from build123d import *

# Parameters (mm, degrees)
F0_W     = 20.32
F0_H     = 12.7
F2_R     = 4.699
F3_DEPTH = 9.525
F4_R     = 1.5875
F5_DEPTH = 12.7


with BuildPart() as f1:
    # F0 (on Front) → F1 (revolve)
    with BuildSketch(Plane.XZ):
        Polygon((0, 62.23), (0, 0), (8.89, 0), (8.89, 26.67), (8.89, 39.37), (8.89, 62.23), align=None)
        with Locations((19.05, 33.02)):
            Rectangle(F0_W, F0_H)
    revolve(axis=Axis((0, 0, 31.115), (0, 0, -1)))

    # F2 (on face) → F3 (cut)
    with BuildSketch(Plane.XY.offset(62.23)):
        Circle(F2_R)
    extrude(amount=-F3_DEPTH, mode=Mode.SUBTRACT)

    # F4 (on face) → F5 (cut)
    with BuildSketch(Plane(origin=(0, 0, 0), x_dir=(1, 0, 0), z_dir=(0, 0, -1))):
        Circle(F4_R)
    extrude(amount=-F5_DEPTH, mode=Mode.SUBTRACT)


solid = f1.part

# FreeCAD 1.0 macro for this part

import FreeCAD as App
import Part
import Sketcher
from FreeCAD import Vector
Q = App.Units.Quantity

doc = App.newDocument("Part")
params = doc.addObject("Spreadsheet::Sheet", "Params")
for row, (alias, value) in enumerate([
    ("sketch1_width", "0.8 in"),
    ("sketch1_height", "0.5 in"),
    ("sketch1_height2", "0.9 in"),
    ("sketch1_width2", "0.35 in"),
    ("sketch1_height3", "2.45 in"),
    ("revolution_angle", "360 deg"),
    ("sketch2_diameter", "0.37 in"),
    ("pocket1_length", "0.375 in"),
    ("sketch3_diameter", "0.125 in"),
    ("pocket2_length", "0.5 in"),
], start=1):
    params.set(f"A{row}", alias)
    params.set(f"B{row}", "=" + value)
    params.setAlias(f"B{row}", alias)

body = doc.addObject("PartDesign::Body", "Body")

# Sketch on XZ plane
sketch1 = body.newObject("Sketcher::SketchObject", "Sketch")
sketch1.AttachmentSupport = (doc.getObject("XZ_Plane"), [""])
sketch1.MapMode = "FlatFace"
sketch1.addGeometry([
    Part.LineSegment(Vector(0, 62, 0), Vector(0, 0, 0)),  # 0
    Part.LineSegment(Vector(0, 0, 0), Vector(9, 0, 0)),  # 1
    Part.LineSegment(Vector(9, 0, 0), Vector(9, 27, 0)),  # 2
    Part.LineSegment(Vector(9, 27, 0), Vector(29, 27, 0)),  # 3
    Part.LineSegment(Vector(29, 27, 0), Vector(29, 39, 0)),  # 4
    Part.LineSegment(Vector(29, 39, 0), Vector(9, 39, 0)),  # 5
    Part.LineSegment(Vector(9, 39, 0), Vector(9, 62, 0)),  # 6
    Part.LineSegment(Vector(9, 62, 0), Vector(0, 62, 0)),  # 7
], False)
sketch1.addConstraint([
    Sketcher.Constraint("Coincident", 0, 2, 1, 1),
    Sketcher.Constraint("Coincident", 1, 2, 2, 1),
    Sketcher.Constraint("Coincident", 2, 2, 3, 1),
    Sketcher.Constraint("Coincident", 3, 2, 4, 1),
    Sketcher.Constraint("Coincident", 4, 2, 5, 1),
    Sketcher.Constraint("Coincident", 5, 2, 6, 1),
    Sketcher.Constraint("Coincident", 6, 2, 7, 1),
    Sketcher.Constraint("Coincident", 7, 2, 0, 1),
    Sketcher.Constraint("Vertical", 0),
    Sketcher.Constraint("Horizontal", 1),
    Sketcher.Constraint("Vertical", 2),
    Sketcher.Constraint("Horizontal", 3),
    Sketcher.Constraint("Vertical", 4),
    Sketcher.Constraint("Horizontal", 5),
    Sketcher.Constraint("Vertical", 6),
    Sketcher.Constraint("Horizontal", 7),
    Sketcher.Constraint("Coincident", 0, 2, -1, 1),
    Sketcher.Constraint("Vertical", 2, 2, 5, 2),
    Sketcher.Constraint("DistanceX", 3, 1, 3, 2, Q("0.8 in")),
    Sketcher.Constraint("DistanceY", 4, 1, 4, 2, Q("0.5 in")),
    Sketcher.Constraint("DistanceY", 6, 1, 6, 2, Q("0.9 in")),
    Sketcher.Constraint("DistanceX", 1, 1, 1, 2, Q("0.35 in")),
    Sketcher.Constraint("DistanceY", 0, 2, 0, 1, Q("2.45 in")),
])
sketch1.setExpression("Constraints[18]", "Params.sketch1_width")
sketch1.setExpression("Constraints[19]", "Params.sketch1_height")
sketch1.setExpression("Constraints[20]", "Params.sketch1_height2")
sketch1.setExpression("Constraints[21]", "Params.sketch1_width2")
sketch1.setExpression("Constraints[22]", "Params.sketch1_height3")
revolution = body.newObject("PartDesign::Revolution", "Revolution")
revolution.Profile = sketch1
revolution.ReferenceAxis = (sketch1, ["V_Axis"])
revolution.setExpression("Angle", "Params.revolution_angle")

# Sketch on XY plane
sketch2 = body.newObject("Sketcher::SketchObject", "Sketch001")
sketch2.AttachmentSupport = (doc.getObject("XY_Plane"), [""])
sketch2.MapMode = "FlatFace"
sketch2.AttachmentOffset = App.Placement(Vector(0, 0, 2.45 * 25.4), App.Rotation())
sketch2.addGeometry(Part.Circle(Vector(0, 0, 0), Vector(0, 0, 1), 4.7), False)
sketch2.addConstraint([
    Sketcher.Constraint("Coincident", 0, 3, -1, 1),
    Sketcher.Constraint("Diameter", 0, Q("0.37 in")),
])
sketch2.setExpression("Constraints[1]", "Params.sketch2_diameter")
pocket1 = body.newObject("PartDesign::Pocket", "Pocket")
pocket1.Profile = sketch2
pocket1.setExpression("Length", "Params.pocket1_length")

# Sketch on XY plane
sketch3 = body.newObject("Sketcher::SketchObject", "Sketch002")
sketch3.AttachmentSupport = (doc.getObject("XY_Plane"), [""])
sketch3.MapMode = "FlatFace"
sketch3.addGeometry(Part.Circle(Vector(0, 0, 0), Vector(0, 0, 1), 1.6), False)
sketch3.addConstraint([
    Sketcher.Constraint("Coincident", 0, 3, -1, 1),
    Sketcher.Constraint("Diameter", 0, Q("0.125 in")),
])
sketch3.setExpression("Constraints[1]", "Params.sketch3_diameter")
pocket2 = body.newObject("PartDesign::Pocket", "Pocket001")
pocket2.Profile = sketch3
pocket2.setExpression("Length", "Params.pocket2_length")
pocket2.Reversed = True

doc.recompute()
